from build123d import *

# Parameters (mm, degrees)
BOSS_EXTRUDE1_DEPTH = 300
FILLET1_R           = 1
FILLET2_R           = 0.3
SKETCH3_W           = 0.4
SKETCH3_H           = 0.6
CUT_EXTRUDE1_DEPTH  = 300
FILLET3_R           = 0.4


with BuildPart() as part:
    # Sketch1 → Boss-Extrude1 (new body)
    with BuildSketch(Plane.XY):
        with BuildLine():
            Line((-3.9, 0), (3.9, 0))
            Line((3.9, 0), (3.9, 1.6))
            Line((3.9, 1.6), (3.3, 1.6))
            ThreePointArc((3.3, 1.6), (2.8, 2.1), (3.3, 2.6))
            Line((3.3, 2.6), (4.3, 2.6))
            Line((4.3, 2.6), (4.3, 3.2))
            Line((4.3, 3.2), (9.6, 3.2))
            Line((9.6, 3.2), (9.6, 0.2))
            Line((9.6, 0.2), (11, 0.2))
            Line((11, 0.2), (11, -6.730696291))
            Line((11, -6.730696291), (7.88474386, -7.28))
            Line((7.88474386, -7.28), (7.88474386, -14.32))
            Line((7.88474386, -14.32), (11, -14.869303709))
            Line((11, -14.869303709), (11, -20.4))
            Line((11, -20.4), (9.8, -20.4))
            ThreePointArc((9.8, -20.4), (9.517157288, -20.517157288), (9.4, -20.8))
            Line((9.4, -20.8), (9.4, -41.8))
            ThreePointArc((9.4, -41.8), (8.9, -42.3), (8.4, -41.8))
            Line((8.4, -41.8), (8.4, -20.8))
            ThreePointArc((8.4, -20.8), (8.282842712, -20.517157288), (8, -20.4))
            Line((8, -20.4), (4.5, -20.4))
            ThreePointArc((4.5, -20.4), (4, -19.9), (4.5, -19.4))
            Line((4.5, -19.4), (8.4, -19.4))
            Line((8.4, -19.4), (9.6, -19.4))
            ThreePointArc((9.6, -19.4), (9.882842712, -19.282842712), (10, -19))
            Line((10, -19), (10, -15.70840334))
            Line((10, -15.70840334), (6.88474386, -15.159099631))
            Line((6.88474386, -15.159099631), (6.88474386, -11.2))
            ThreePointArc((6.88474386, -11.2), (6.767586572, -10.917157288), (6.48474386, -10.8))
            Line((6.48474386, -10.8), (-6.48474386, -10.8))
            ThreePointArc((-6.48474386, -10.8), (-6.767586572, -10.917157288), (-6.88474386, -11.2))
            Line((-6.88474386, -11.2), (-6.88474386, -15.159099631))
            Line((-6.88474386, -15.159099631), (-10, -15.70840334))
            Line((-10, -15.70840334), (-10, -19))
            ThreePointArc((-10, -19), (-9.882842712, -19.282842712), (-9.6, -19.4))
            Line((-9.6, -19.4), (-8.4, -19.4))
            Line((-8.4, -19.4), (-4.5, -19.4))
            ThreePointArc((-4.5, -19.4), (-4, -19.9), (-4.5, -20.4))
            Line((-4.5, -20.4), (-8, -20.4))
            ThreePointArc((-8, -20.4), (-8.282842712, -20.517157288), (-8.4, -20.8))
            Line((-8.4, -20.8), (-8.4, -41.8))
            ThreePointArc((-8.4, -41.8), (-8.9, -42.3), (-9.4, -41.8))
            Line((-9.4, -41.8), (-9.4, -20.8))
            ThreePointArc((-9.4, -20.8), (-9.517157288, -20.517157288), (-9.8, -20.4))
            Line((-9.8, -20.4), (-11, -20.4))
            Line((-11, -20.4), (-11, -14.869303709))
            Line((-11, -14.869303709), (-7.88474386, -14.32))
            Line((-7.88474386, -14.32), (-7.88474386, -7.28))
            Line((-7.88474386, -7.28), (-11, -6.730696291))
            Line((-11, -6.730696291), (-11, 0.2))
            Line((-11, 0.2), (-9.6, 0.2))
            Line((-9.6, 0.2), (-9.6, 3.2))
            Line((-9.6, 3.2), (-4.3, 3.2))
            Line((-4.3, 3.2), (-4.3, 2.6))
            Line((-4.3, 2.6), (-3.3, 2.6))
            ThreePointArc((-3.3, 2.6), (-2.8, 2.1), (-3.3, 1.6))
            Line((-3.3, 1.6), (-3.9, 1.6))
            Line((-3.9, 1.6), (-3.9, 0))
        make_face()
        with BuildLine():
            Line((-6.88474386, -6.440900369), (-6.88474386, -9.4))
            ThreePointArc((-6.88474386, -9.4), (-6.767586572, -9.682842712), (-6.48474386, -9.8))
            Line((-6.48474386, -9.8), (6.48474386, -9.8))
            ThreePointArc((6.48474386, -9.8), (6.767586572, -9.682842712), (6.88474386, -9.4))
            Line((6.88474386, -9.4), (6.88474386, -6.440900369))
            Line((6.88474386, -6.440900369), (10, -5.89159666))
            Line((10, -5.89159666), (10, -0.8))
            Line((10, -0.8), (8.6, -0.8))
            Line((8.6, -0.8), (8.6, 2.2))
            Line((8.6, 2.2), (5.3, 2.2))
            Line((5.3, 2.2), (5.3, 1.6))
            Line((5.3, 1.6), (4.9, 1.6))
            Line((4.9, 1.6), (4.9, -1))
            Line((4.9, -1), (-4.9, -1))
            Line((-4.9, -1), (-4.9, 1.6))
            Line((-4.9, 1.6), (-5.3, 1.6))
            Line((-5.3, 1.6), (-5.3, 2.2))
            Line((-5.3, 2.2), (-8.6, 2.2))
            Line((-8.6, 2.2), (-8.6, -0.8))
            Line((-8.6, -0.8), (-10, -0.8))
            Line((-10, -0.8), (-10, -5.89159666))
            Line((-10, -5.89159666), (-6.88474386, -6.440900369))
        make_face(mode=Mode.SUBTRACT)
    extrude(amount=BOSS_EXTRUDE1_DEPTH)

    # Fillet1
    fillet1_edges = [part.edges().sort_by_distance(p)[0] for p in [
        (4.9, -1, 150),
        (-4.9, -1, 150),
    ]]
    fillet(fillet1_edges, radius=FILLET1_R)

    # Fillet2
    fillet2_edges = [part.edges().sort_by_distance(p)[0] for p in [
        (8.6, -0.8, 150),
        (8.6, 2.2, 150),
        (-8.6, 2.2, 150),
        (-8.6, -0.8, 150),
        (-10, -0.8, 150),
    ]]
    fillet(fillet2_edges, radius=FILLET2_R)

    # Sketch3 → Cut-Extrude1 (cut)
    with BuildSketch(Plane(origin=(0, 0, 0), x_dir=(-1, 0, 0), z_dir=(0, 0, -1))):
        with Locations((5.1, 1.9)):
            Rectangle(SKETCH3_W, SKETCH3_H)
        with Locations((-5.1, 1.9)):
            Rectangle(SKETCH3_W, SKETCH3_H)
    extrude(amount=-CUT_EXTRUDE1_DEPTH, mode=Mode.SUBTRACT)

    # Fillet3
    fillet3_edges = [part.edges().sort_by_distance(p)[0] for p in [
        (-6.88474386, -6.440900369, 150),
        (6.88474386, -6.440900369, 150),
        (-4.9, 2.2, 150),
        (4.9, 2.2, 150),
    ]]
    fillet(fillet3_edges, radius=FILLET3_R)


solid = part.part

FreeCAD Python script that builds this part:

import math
import FreeCAD as App
import Part
import Sketcher
Q = App.Units.Quantity


def edges_at(feature, points):
    """Names of the edges that pass closest to the given points."""
    edges = feature.Shape.Edges
    near = lambda p: min(range(len(edges)), key=lambda i: edges[i].distToShape(Part.Vertex(*p))[0])
    return sorted({f"Edge{near(p) + 1}" for p in points})


def add_polygon(sketch, points):
    """Adds a closed chain of lines whose ends are joined by coincident constraints."""
    first, n = sketch.GeometryCount, len(points)
    for a, b in zip(points, points[1:] + points[:1]):
        sketch.addGeometry(Part.LineSegment(App.Vector(*a, 0), App.Vector(*b, 0)), False)
    for i in range(n):
        sketch.addConstraint(Sketcher.Constraint("Coincident", first + i, 2, first + (i + 1) % n, 1))

doc = App.newDocument("Part")
body = doc.addObject("PartDesign::Body", "Body")

# Sketch on XY plane
sketch1 = body.newObject("Sketcher::SketchObject", "Sketch")
sketch1.AttachmentSupport = (doc.getObject("XY_Plane"), [""])
sketch1.MapMode = "FlatFace"
sketch1.addGeometry([
    Part.LineSegment(App.Vector(3.9, 0, 0), App.Vector(-3.9, 0, 0)),  # 0
    Part.LineSegment(App.Vector(-3.9, 0, 0), App.Vector(-3.9, 1.6, 0)),  # 1
    Part.LineSegment(App.Vector(-3.9, 1.6, 0), App.Vector(-3.3, 1.6, 0)),  # 2
    Part.ArcOfCircle(Part.Circle(App.Vector(-3.3, 2.1, 0), App.Vector(0, 0, 1), 0.5), math.radians(-90), math.radians(90)),  # 3
    Part.LineSegment(App.Vector(-3.3, 2.6, 0), App.Vector(-4.3, 2.6, 0)),  # 4
    Part.LineSegment(App.Vector(-4.3, 2.6, 0), App.Vector(-4.3, 3.2, 0)),  # 5
    Part.LineSegment(App.Vector(-4.3, 3.2, 0), App.Vector(-9.6, 3.2, 0)),  # 6
    Part.LineSegment(App.Vector(-9.6, 3.2, 0), App.Vector(-9.6, 0.2, 0)),  # 7
    Part.LineSegment(App.Vector(-9.6, 0.2, 0), App.Vector(-11, 0.2, 0)),  # 8
    Part.LineSegment(App.Vector(-11, 0.2, 0), App.Vector(-11, -6.73, 0)),  # 9
    Part.LineSegment(App.Vector(-11, -6.73, 0), App.Vector(-7.88, -7.28, 0)),  # 10
    Part.LineSegment(App.Vector(-7.88, -7.28, 0), App.Vector(-7.88, -14.32, 0)),  # 11
    Part.LineSegment(App.Vector(-7.88, -14.32, 0), App.Vector(-11, -14.87, 0)),  # 12
    Part.LineSegment(App.Vector(-11, -14.87, 0), App.Vector(-11, -20.4, 0)),  # 13
    Part.LineSegment(App.Vector(-11, -20.4, 0), App.Vector(-9.8, -20.4, 0)),  # 14
    Part.ArcOfCircle(Part.Circle(App.Vector(-9.8, -20.8, 0), App.Vector(0, 0, 1), 0.4), math.radians(0), math.radians(90)),  # 15
    Part.LineSegment(App.Vector(-9.4, -20.8, 0), App.Vector(-9.4, -41.8, 0)),  # 16
    Part.ArcOfCircle(Part.Circle(App.Vector(-8.9, -41.8, 0), App.Vector(0, 0, 1), 0.5), math.radians(180), math.radians(360)),  # 17
    Part.LineSegment(App.Vector(-8.4, -41.8, 0), App.Vector(-8.4, -20.8, 0)),  # 18
    Part.ArcOfCircle(Part.Circle(App.Vector(-8, -20.8, 0), App.Vector(0, 0, 1), 0.4), math.radians(90), math.radians(180)),  # 19
    Part.LineSegment(App.Vector(-8, -20.4, 0), App.Vector(-4.5, -20.4, 0)),  # 20
    Part.ArcOfCircle(Part.Circle(App.Vector(-4.5, -19.9, 0), App.Vector(0, 0, 1), 0.5), math.radians(-90), math.radians(90)),  # 21
    Part.LineSegment(App.Vector(-4.5, -19.4, 0), App.Vector(-9.6, -19.4, 0)),  # 22
    Part.ArcOfCircle(Part.Circle(App.Vector(-9.6, -19, 0), App.Vector(0, 0, 1), 0.4), math.radians(-180), math.radians(-90)),  # 23
    Part.LineSegment(App.Vector(-10, -19, 0), App.Vector(-10, -15.71, 0)),  # 24
    Part.LineSegment(App.Vector(-10, -15.71, 0), App.Vector(-6.88, -15.16, 0)),  # 25
    Part.LineSegment(App.Vector(-6.88, -15.16, 0), App.Vector(-6.88, -11.2, 0)),  # 26
    Part.ArcOfCircle(Part.Circle(App.Vector(-6.48, -11.2, 0), App.Vector(0, 0, 1), 0.4), math.radians(90), math.radians(180)),  # 27
    Part.LineSegment(App.Vector(-6.48, -10.8, 0), App.Vector(6.48, -10.8, 0)),  # 28
    Part.ArcOfCircle(Part.Circle(App.Vector(6.48, -11.2, 0), App.Vector(0, 0, 1), 0.4), math.radians(0), math.radians(90)),  # 29
    Part.LineSegment(App.Vector(6.88, -11.2, 0), App.Vector(6.88, -15.16, 0)),  # 30
    Part.LineSegment(App.Vector(6.88, -15.16, 0), App.Vector(10, -15.71, 0)),  # 31
    Part.LineSegment(App.Vector(10, -15.71, 0), App.Vector(10, -19, 0)),  # 32
    Part.ArcOfCircle(Part.Circle(App.Vector(9.6, -19, 0), App.Vector(0, 0, 1), 0.4), math.radians(-90), math.radians(0)),  # 33
    Part.LineSegment(App.Vector(9.6, -19.4, 0), App.Vector(4.5, -19.4, 0)),  # 34
    Part.ArcOfCircle(Part.Circle(App.Vector(4.5, -19.9, 0), App.Vector(0, 0, 1), 0.5), math.radians(90), math.radians(270)),  # 35
    Part.LineSegment(App.Vector(4.5, -20.4, 0), App.Vector(8, -20.4, 0)),  # 36
    Part.ArcOfCircle(Part.Circle(App.Vector(8, -20.8, 0), App.Vector(0, 0, 1), 0.4), math.radians(0), math.radians(90)),  # 37
    Part.LineSegment(App.Vector(8.4, -20.8, 0), App.Vector(8.4, -41.8, 0)),  # 38
    Part.ArcOfCircle(Part.Circle(App.Vector(8.9, -41.8, 0), App.Vector(0, 0, 1), 0.5), math.radians(180), math.radians(360)),  # 39
    Part.LineSegment(App.Vector(9.4, -41.8, 0), App.Vector(9.4, -20.8, 0)),  # 40
    Part.ArcOfCircle(Part.Circle(App.Vector(9.8, -20.8, 0), App.Vector(0, 0, 1), 0.4), math.radians(90), math.radians(180)),  # 41
    Part.LineSegment(App.Vector(9.8, -20.4, 0), App.Vector(11, -20.4, 0)),  # 42
    Part.LineSegment(App.Vector(11, -20.4, 0), App.Vector(11, -14.87, 0)),  # 43
    Part.LineSegment(App.Vector(11, -14.87, 0), App.Vector(7.88, -14.32, 0)),  # 44
    Part.LineSegment(App.Vector(7.88, -14.32, 0), App.Vector(7.88, -7.28, 0)),  # 45
    Part.LineSegment(App.Vector(7.88, -7.28, 0), App.Vector(11, -6.73, 0)),  # 46
    Part.LineSegment(App.Vector(11, -6.73, 0), App.Vector(11, 0.2, 0)),  # 47
    Part.LineSegment(App.Vector(11, 0.2, 0), App.Vector(9.6, 0.2, 0)),  # 48
    Part.LineSegment(App.Vector(9.6, 0.2, 0), App.Vector(9.6, 3.2, 0)),  # 49
    Part.LineSegment(App.Vector(9.6, 3.2, 0), App.Vector(4.3, 3.2, 0)),  # 50
    Part.LineSegment(App.Vector(4.3, 3.2, 0), App.Vector(4.3, 2.6, 0)),  # 51
    Part.LineSegment(App.Vector(4.3, 2.6, 0), App.Vector(3.3, 2.6, 0)),  # 52
    Part.ArcOfCircle(Part.Circle(App.Vector(3.3, 2.1, 0), App.Vector(0, 0, 1), 0.5), math.radians(90), math.radians(270)),  # 53
    Part.LineSegment(App.Vector(3.3, 1.6, 0), App.Vector(3.9, 1.6, 0)),  # 54
    Part.LineSegment(App.Vector(3.9, 1.6, 0), App.Vector(3.9, 0, 0)),  # 55
    Part.LineSegment(App.Vector(-6.88, -6.44, 0), App.Vector(-10, -5.89, 0)),  # 56
    Part.LineSegment(App.Vector(-10, -5.89, 0), App.Vector(-10, -0.8, 0)),  # 57
    Part.LineSegment(App.Vector(-10, -0.8, 0), App.Vector(-8.6, -0.8, 0)),  # 58
    Part.LineSegment(App.Vector(-8.6, -0.8, 0), App.Vector(-8.6, 2.2, 0)),  # 59
    Part.LineSegment(App.Vector(-8.6, 2.2, 0), App.Vector(-5.3, 2.2, 0)),  # 60
    Part.LineSegment(App.Vector(-5.3, 2.2, 0), App.Vector(-5.3, 1.6, 0)),  # 61
    Part.LineSegment(App.Vector(-5.3, 1.6, 0), App.Vector(-4.9, 1.6, 0)),  # 62
    Part.LineSegment(App.Vector(-4.9, 1.6, 0), App.Vector(-4.9, -1, 0)),  # 63
    Part.LineSegment(App.Vector(-4.9, -1, 0), App.Vector(4.9, -1, 0)),  # 64
    Part.LineSegment(App.Vector(4.9, -1, 0), App.Vector(4.9, 1.6, 0)),  # 65
    Part.LineSegment(App.Vector(4.9, 1.6, 0), App.Vector(5.3, 1.6, 0)),  # 66
    Part.LineSegment(App.Vector(5.3, 1.6, 0), App.Vector(5.3, 2.2, 0)),  # 67
    Part.LineSegment(App.Vector(5.3, 2.2, 0), App.Vector(8.6, 2.2, 0)),  # 68
    Part.LineSegment(App.Vector(8.6, 2.2, 0), App.Vector(8.6, -0.8, 0)),  # 69
    Part.LineSegment(App.Vector(8.6, -0.8, 0), App.Vector(10, -0.8, 0)),  # 70
    Part.LineSegment(App.Vector(10, -0.8, 0), App.Vector(10, -5.89, 0)),  # 71
    Part.LineSegment(App.Vector(10, -5.89, 0), App.Vector(6.88, -6.44, 0)),  # 72
    Part.LineSegment(App.Vector(6.88, -6.44, 0), App.Vector(6.88, -9.4, 0)),  # 73
    Part.ArcOfCircle(Part.Circle(App.Vector(6.48, -9.4, 0), App.Vector(0, 0, 1), 0.4), math.radians(-90), math.radians(0)),  # 74
    Part.LineSegment(App.Vector(6.48, -9.8, 0), App.Vector(-6.48, -9.8, 0)),  # 75
    Part.ArcOfCircle(Part.Circle(App.Vector(-6.48, -9.4, 0), App.Vector(0, 0, 1), 0.4), math.radians(-180), math.radians(-90)),  # 76
    Part.LineSegment(App.Vector(-6.88, -9.4, 0), App.Vector(-6.88, -6.44, 0)),  # 77
], False)
sketch1.addConstraint([
    Sketcher.Constraint("Coincident", 0, 2, 1, 1),
    Sketcher.Constraint("Coincident", 1, 2, 2, 1),
    Sketcher.Constraint("Tangent", 2, 2, 3, 1),
    Sketcher.Constraint("Tangent", 3, 2, 4, 1),
    Sketcher.Constraint("Coincident", 4, 2, 5, 1),
    Sketcher.Constraint("Coincident", 5, 2, 6, 1),
    Sketcher.Constraint("Coincident", 6, 2, 7, 1),
    Sketcher.Constraint("Coincident", 7, 2, 8, 1),
    Sketcher.Constraint("Coincident", 8, 2, 9, 1),
    Sketcher.Constraint("Coincident", 9, 2, 10, 1),
    Sketcher.Constraint("Coincident", 10, 2, 11, 1),
    Sketcher.Constraint("Coincident", 11, 2, 12, 1),
    Sketcher.Constraint("Coincident", 12, 2, 13, 1),
    Sketcher.Constraint("Coincident", 13, 2, 14, 1),
    Sketcher.Constraint("Tangent", 14, 2, 15, 2),
    Sketcher.Constraint("Tangent", 15, 1, 16, 1),
    Sketcher.Constraint("Tangent", 16, 2, 17, 1),
    Sketcher.Constraint("Tangent", 17, 2, 18, 1),
    Sketcher.Constraint("Tangent", 18, 2, 19, 2),
    Sketcher.Constraint("Tangent", 19, 1, 20, 1),
    Sketcher.Constraint("Tangent", 20, 2, 21, 1),
    Sketcher.Constraint("Tangent", 21, 2, 22, 1),
    Sketcher.Constraint("Tangent", 22, 2, 23, 2),
    Sketcher.Constraint("Tangent", 23, 1, 24, 1),
    Sketcher.Constraint("Coincident", 24, 2, 25, 1),
    Sketcher.Constraint("Coincident", 25, 2, 26, 1),
    Sketcher.Constraint("Tangent", 26, 2, 27, 2),
    Sketcher.Constraint("Tangent", 27, 1, 28, 1),
    Sketcher.Constraint("Tangent", 28, 2, 29, 2),
    Sketcher.Constraint("Tangent", 29, 1, 30, 1),
    Sketcher.Constraint("Coincident", 30, 2, 31, 1),
    Sketcher.Constraint("Coincident", 31, 2, 32, 1),
    Sketcher.Constraint("Tangent", 32, 2, 33, 2),
    Sketcher.Constraint("Tangent", 33, 1, 34, 1),
    Sketcher.Constraint("Tangent", 34, 2, 35, 1),
    Sketcher.Constraint("Tangent", 35, 2, 36, 1),
    Sketcher.Constraint("Tangent", 36, 2, 37, 2),
    Sketcher.Constraint("Tangent", 37, 1, 38, 1),
    Sketcher.Constraint("Tangent", 38, 2, 39, 1),
    Sketcher.Constraint("Tangent", 39, 2, 40, 1),
    Sketcher.Constraint("Tangent", 40, 2, 41, 2),
    Sketcher.Constraint("Tangent", 41, 1, 42, 1),
    Sketcher.Constraint("Coincident", 42, 2, 43, 1),
    Sketcher.Constraint("Coincident", 43, 2, 44, 1),
    Sketcher.Constraint("Coincident", 44, 2, 45, 1),
    Sketcher.Constraint("Coincident", 45, 2, 46, 1),
    Sketcher.Constraint("Coincident", 46, 2, 47, 1),
    Sketcher.Constraint("Coincident", 47, 2, 48, 1),
    Sketcher.Constraint("Coincident", 48, 2, 49, 1),
    Sketcher.Constraint("Coincident", 49, 2, 50, 1),
    Sketcher.Constraint("Coincident", 50, 2, 51, 1),
    Sketcher.Constraint("Coincident", 51, 2, 52, 1),
    Sketcher.Constraint("Tangent", 52, 2, 53, 1),
    Sketcher.Constraint("Tangent", 53, 2, 54, 1),
    Sketcher.Constraint("Coincident", 54, 2, 55, 1),
    Sketcher.Constraint("Coincident", 55, 2, 0, 1),
    Sketcher.Constraint("Coincident", 56, 2, 57, 1),
    Sketcher.Constraint("Coincident", 57, 2, 58, 1),
    Sketcher.Constraint("Coincident", 58, 2, 59, 1),
    Sketcher.Constraint("Coincident", 59, 2, 60, 1),
    Sketcher.Constraint("Coincident", 60, 2, 61, 1),
    Sketcher.Constraint("Coincident", 61, 2, 62, 1),
    Sketcher.Constraint("Coincident", 62, 2, 63, 1),
    Sketcher.Constraint("Coincident", 63, 2, 64, 1),
    Sketcher.Constraint("Coincident", 64, 2, 65, 1),
    Sketcher.Constraint("Coincident", 65, 2, 66, 1),
    Sketcher.Constraint("Coincident", 66, 2, 67, 1),
    Sketcher.Constraint("Coincident", 67, 2, 68, 1),
    Sketcher.Constraint("Coincident", 68, 2, 69, 1),
    Sketcher.Constraint("Coincident", 69, 2, 70, 1),
    Sketcher.Constraint("Coincident", 70, 2, 71, 1),
    Sketcher.Constraint("Coincident", 71, 2, 72, 1),
    Sketcher.Constraint("Coincident", 72, 2, 73, 1),
    Sketcher.Constraint("Tangent", 73, 2, 74, 2),
    Sketcher.Constraint("Tangent", 74, 1, 75, 1),
    Sketcher.Constraint("Tangent", 75, 2, 76, 2),
    Sketcher.Constraint("Tangent", 76, 1, 77, 1),
    Sketcher.Constraint("Coincident", 77, 2, 56, 1),
    Sketcher.Constraint("Horizontal", 0),
    Sketcher.Constraint("Vertical", 1),
    Sketcher.Constraint("Horizontal", 2),
    Sketcher.Constraint("Horizontal", 4),
    Sketcher.Constraint("Vertical", 5),
    Sketcher.Constraint("Horizontal", 6),
    Sketcher.Constraint("Vertical", 7),
    Sketcher.Constraint("Horizontal", 8),
    Sketcher.Constraint("Vertical", 9),
    Sketcher.Constraint("Vertical", 11),
    Sketcher.Constraint("Vertical", 13),
    Sketcher.Constraint("Horizontal", 14),
    Sketcher.Constraint("Vertical", 16),
    Sketcher.Constraint("Vertical", 18),
    Sketcher.Constraint("Horizontal", 20),
    Sketcher.Constraint("Horizontal", 22),
    Sketcher.Constraint("Vertical", 24),
    Sketcher.Constraint("Vertical", 26),
    Sketcher.Constraint("Horizontal", 28),
    Sketcher.Constraint("Vertical", 30),
    Sketcher.Constraint("Vertical", 32),
    Sketcher.Constraint("Horizontal", 34),
    Sketcher.Constraint("Horizontal", 36),
    Sketcher.Constraint("Vertical", 38),
    Sketcher.Constraint("Vertical", 40),
    Sketcher.Constraint("Horizontal", 42),
    Sketcher.Constraint("Vertical", 43),
    Sketcher.Constraint("Vertical", 45),
    Sketcher.Constraint("Vertical", 47),
    Sketcher.Constraint("Horizontal", 48),
    Sketcher.Constraint("Vertical", 49),
    Sketcher.Constraint("Horizontal", 50),
    Sketcher.Constraint("Vertical", 51),
    Sketcher.Constraint("Horizontal", 52),
    Sketcher.Constraint("Horizontal", 54),
    Sketcher.Constraint("Vertical", 55),
    Sketcher.Constraint("Vertical", 57),
    Sketcher.Constraint("Horizontal", 58),
    Sketcher.Constraint("Vertical", 59),
    Sketcher.Constraint("Horizontal", 60),
    Sketcher.Constraint("Vertical", 61),
    Sketcher.Constraint("Horizontal", 62),
    Sketcher.Constraint("Vertical", 63),
    Sketcher.Constraint("Horizontal", 64),
    Sketcher.Constraint("Vertical", 65),
    Sketcher.Constraint("Horizontal", 66),
    Sketcher.Constraint("Vertical", 67),
    Sketcher.Constraint("Horizontal", 68),
    Sketcher.Constraint("Vertical", 69),
    Sketcher.Constraint("Horizontal", 70),
    Sketcher.Constraint("Vertical", 71),
    Sketcher.Constraint("Vertical", 73),
    Sketcher.Constraint("Horizontal", 75),
    Sketcher.Constraint("Vertical", 77),
    Sketcher.Constraint("Equal", 3, 17),
    Sketcher.Constraint("Equal", 15, 19),
    Sketcher.Constraint("Equal", 17, 21),
    Sketcher.Constraint("Equal", 19, 23),
    Sketcher.Constraint("Equal", 23, 27),
    Sketcher.Constraint("Equal", 27, 29),
    Sketcher.Constraint("Equal", 29, 33),
    Sketcher.Constraint("Equal", 21, 35),
    Sketcher.Constraint("Equal", 33, 37),
    Sketcher.Constraint("Equal", 35, 39),
    Sketcher.Constraint("Equal", 37, 41),
    Sketcher.Constraint("Equal", 39, 53),
    Sketcher.Constraint("Equal", 41, 74),
    Sketcher.Constraint("Equal", 74, 76),
    Sketcher.Constraint("Symmetric", 0, 2, 55, 2, -1, 1),
    Sketcher.Constraint("Symmetric", 23, 3, 33, 3, -2),
    Sketcher.Constraint("Symmetric", 17, 3, 39, 3, -2),
    Sketcher.Constraint("Symmetric", 3, 3, 53, 3, -2),
    Sketcher.Constraint("Symmetric", 25, 2, 30, 2, -2),
    Sketcher.Constraint("Symmetric", 13, 2, 42, 2, -2),
    Sketcher.Constraint("Symmetric", 11, 2, 44, 2, -2),
    Sketcher.Constraint("Symmetric", 9, 2, 46, 2, -2),
    Sketcher.Constraint("Symmetric", 7, 2, 48, 2, -2),
    Sketcher.Constraint("Symmetric", 5, 2, 50, 2, -2),
    Sketcher.Constraint("Symmetric", 62, 2, 65, 2, -2),
    Sketcher.Constraint("Symmetric", 60, 2, 67, 2, -2),
    Sketcher.Constraint("Symmetric", 58, 2, 69, 2, -2),
    Sketcher.Constraint("Symmetric", 56, 2, 71, 2, -2),
    Sketcher.Constraint("Symmetric", 72, 2, 77, 2, -2),
    Sketcher.Constraint("Parallel", 12, 25),
    Sketcher.Constraint("Parallel", 10, 31),
    Sketcher.Constraint("Parallel", 31, 44),
    Sketcher.Constraint("Parallel", 25, 46),
    Sketcher.Constraint("Parallel", 44, 56),
    Sketcher.Constraint("Parallel", 46, 72),
    Sketcher.Constraint("Horizontal", 15, 3, 19, 3),
    Sketcher.Constraint("Horizontal", 54, 2, 61, 2),
    Sketcher.Constraint("Vertical", 29, 3, 74, 3),
    Sketcher.Constraint("Vertical", 23, 3, 6, 2),
    Sketcher.Constraint("Vertical", 9, 2, 12, 2),
    Sketcher.Constraint("Vertical", 24, 2, 56, 2),
    Sketcher.Constraint("Equal", 22, 34),
    Sketcher.Constraint("Equal", 48, 58),
    Sketcher.Constraint("Equal", 54, 5),
    Sketcher.Constraint("Equal", 49, 59),
    Sketcher.Constraint("Equal", 51, 61),
    Sketcher.Constraint("Equal", 12, 25),
    Sketcher.Constraint("Radius", 3, Q("0.5 mm")),
    Sketcher.Constraint("Radius", 15, Q("0.4 mm")),
    Sketcher.Constraint("DistanceX", 4, 2, 4, 1, Q("1 mm")),
    Sketcher.Constraint("DistanceY", 7, 2, 7, 1, Q("3 mm")),
    Sketcher.Constraint("DistanceY", 16, 2, 16, 1, Q("21 mm")),
    Sketcher.Constraint("Angle", 10, Q("-10 deg")),
    Sketcher.Constraint("DistanceX", 0, 2, 0, 1, Q("7.8 mm")),
    Sketcher.Constraint("DistanceX", 2, 1, 2, 2, Q("0.6 mm")),
    Sketcher.Constraint("DistanceX", 6, 2, 6, 1, Q("5.3 mm")),
    Sketcher.Constraint("DistanceX", 8, 2, 8, 1, Q("1.4 mm")),
    Sketcher.Constraint("DistanceX", 14, 1, 14, 2, Q("1.2 mm")),
    Sketcher.Constraint("DistanceX", 20, 1, 20, 2, Q("3.5 mm")),
    Sketcher.Constraint("DistanceX", 60, 1, 60, 2, Q("3.3 mm")),
    Sketcher.Constraint("DistanceX", 62, 1, 62, 2, Q("0.4 mm")),
    Sketcher.Constraint("DistanceY", 1, 1, 1, 2, Q("1.6 mm")),
    Sketcher.Constraint("DistanceY", 63, 2, 63, 1, Q("2.6 mm")),
    Sketcher.Constraint("DistanceY", 23, 3, -1, 1, Q("19 mm")),
    Sketcher.Constraint("DistanceY", 11, 2, 11, 1, Q("7.04 mm")),
    Sketcher.Constraint("DistanceY", 27, 3, -1, 1, Q("11.2 mm")),
    Sketcher.Constraint("DistanceY", 74, 3, -1, 1, Q("9.4 mm")),
    Sketcher.Constraint("DistanceY", 10, 2, -1, 1, Q("7.28 mm")),
    Sketcher.Constraint("DistanceY", 26, 1, 26, 2, Q("3.9591 mm")),
    Sketcher.Constraint("DistanceY", 73, 2, 73, 1, Q("2.9591 mm")),
    Sketcher.Constraint("DistanceX", 28, 1, 28, 2, Q("12.969488 mm")),
])
pad1 = body.newObject("PartDesign::Pad", "Pad")
pad1.Profile = sketch1
pad1.Length = 300
doc.recompute()

fillet = body.newObject("PartDesign::Fillet", "Fillet")
fillet.Base = (pad1, edges_at(pad1, [(4.9, -1, 150), (-4.9, -1, 150)]))
fillet.Radius = 1
doc.recompute()

fillet2 = body.newObject("PartDesign::Fillet", "Fillet001")
fillet2.Base = (fillet, edges_at(fillet, [
    (8.6, -0.8, 150),
    (8.6, 2.2, 150),
    (-8.6, 2.2, 150),
    (-8.6, -0.8, 150),
    (-10, -0.8, 150),
]))
fillet2.Radius = 0.3

# Sketch on XY plane
sketch2 = body.newObject("Sketcher::SketchObject", "Sketch001")
sketch2.AttachmentSupport = (doc.getObject("XY_Plane"), [""])
sketch2.MapMode = "FlatFace"
add_polygon(sketch2, [(-4.9, 2.2), (-4.9, 1.6), (-5.3, 1.6), (-5.3, 2.2)])  # lines 0-3
add_polygon(sketch2, [(5.3, 2.2), (5.3, 1.6), (4.9, 1.6), (4.9, 2.2)])  # lines 4-7
sketch2.addConstraint([
    Sketcher.Constraint("Vertical", 0),
    Sketcher.Constraint("Horizontal", 1),
    Sketcher.Constraint("Vertical", 2),
    Sketcher.Constraint("Horizontal", 3),
    Sketcher.Constraint("Vertical", 4),
    Sketcher.Constraint("Horizontal", 5),
    Sketcher.Constraint("Vertical", 6),
    Sketcher.Constraint("Horizontal", 7),
    Sketcher.Constraint("Symmetric", 1, 2, 4, 2, -2),
    Sketcher.Constraint("Symmetric", 3, 2, 6, 2, -2),
    Sketcher.Constraint("DistanceX", 1, 2, 1, 1, Q("0.4 mm")),
    Sketcher.Constraint("DistanceY", 0, 2, 0, 1, Q("0.6 mm")),
    Sketcher.Constraint("DistanceX", 0, 2, -1, 1, Q("4.9 mm")),
    Sketcher.Constraint("DistanceY", -1, 1, 0, 2, Q("1.6 mm")),
])
pocket1 = body.newObject("PartDesign::Pocket", "Pocket")
pocket1.Profile = sketch2
pocket1.Length = 300
pocket1.Reversed = True
doc.recompute()

fillet3 = body.newObject("PartDesign::Fillet", "Fillet002")
fillet3.Base = (pocket1, edges_at(pocket1, [
    (-6.885, -6.441, 150),
    (6.885, -6.441, 150),
    (-4.9, 2.2, 150),
    (4.9, 2.2, 150),
]))
fillet3.Radius = 0.4

doc.recompute()
